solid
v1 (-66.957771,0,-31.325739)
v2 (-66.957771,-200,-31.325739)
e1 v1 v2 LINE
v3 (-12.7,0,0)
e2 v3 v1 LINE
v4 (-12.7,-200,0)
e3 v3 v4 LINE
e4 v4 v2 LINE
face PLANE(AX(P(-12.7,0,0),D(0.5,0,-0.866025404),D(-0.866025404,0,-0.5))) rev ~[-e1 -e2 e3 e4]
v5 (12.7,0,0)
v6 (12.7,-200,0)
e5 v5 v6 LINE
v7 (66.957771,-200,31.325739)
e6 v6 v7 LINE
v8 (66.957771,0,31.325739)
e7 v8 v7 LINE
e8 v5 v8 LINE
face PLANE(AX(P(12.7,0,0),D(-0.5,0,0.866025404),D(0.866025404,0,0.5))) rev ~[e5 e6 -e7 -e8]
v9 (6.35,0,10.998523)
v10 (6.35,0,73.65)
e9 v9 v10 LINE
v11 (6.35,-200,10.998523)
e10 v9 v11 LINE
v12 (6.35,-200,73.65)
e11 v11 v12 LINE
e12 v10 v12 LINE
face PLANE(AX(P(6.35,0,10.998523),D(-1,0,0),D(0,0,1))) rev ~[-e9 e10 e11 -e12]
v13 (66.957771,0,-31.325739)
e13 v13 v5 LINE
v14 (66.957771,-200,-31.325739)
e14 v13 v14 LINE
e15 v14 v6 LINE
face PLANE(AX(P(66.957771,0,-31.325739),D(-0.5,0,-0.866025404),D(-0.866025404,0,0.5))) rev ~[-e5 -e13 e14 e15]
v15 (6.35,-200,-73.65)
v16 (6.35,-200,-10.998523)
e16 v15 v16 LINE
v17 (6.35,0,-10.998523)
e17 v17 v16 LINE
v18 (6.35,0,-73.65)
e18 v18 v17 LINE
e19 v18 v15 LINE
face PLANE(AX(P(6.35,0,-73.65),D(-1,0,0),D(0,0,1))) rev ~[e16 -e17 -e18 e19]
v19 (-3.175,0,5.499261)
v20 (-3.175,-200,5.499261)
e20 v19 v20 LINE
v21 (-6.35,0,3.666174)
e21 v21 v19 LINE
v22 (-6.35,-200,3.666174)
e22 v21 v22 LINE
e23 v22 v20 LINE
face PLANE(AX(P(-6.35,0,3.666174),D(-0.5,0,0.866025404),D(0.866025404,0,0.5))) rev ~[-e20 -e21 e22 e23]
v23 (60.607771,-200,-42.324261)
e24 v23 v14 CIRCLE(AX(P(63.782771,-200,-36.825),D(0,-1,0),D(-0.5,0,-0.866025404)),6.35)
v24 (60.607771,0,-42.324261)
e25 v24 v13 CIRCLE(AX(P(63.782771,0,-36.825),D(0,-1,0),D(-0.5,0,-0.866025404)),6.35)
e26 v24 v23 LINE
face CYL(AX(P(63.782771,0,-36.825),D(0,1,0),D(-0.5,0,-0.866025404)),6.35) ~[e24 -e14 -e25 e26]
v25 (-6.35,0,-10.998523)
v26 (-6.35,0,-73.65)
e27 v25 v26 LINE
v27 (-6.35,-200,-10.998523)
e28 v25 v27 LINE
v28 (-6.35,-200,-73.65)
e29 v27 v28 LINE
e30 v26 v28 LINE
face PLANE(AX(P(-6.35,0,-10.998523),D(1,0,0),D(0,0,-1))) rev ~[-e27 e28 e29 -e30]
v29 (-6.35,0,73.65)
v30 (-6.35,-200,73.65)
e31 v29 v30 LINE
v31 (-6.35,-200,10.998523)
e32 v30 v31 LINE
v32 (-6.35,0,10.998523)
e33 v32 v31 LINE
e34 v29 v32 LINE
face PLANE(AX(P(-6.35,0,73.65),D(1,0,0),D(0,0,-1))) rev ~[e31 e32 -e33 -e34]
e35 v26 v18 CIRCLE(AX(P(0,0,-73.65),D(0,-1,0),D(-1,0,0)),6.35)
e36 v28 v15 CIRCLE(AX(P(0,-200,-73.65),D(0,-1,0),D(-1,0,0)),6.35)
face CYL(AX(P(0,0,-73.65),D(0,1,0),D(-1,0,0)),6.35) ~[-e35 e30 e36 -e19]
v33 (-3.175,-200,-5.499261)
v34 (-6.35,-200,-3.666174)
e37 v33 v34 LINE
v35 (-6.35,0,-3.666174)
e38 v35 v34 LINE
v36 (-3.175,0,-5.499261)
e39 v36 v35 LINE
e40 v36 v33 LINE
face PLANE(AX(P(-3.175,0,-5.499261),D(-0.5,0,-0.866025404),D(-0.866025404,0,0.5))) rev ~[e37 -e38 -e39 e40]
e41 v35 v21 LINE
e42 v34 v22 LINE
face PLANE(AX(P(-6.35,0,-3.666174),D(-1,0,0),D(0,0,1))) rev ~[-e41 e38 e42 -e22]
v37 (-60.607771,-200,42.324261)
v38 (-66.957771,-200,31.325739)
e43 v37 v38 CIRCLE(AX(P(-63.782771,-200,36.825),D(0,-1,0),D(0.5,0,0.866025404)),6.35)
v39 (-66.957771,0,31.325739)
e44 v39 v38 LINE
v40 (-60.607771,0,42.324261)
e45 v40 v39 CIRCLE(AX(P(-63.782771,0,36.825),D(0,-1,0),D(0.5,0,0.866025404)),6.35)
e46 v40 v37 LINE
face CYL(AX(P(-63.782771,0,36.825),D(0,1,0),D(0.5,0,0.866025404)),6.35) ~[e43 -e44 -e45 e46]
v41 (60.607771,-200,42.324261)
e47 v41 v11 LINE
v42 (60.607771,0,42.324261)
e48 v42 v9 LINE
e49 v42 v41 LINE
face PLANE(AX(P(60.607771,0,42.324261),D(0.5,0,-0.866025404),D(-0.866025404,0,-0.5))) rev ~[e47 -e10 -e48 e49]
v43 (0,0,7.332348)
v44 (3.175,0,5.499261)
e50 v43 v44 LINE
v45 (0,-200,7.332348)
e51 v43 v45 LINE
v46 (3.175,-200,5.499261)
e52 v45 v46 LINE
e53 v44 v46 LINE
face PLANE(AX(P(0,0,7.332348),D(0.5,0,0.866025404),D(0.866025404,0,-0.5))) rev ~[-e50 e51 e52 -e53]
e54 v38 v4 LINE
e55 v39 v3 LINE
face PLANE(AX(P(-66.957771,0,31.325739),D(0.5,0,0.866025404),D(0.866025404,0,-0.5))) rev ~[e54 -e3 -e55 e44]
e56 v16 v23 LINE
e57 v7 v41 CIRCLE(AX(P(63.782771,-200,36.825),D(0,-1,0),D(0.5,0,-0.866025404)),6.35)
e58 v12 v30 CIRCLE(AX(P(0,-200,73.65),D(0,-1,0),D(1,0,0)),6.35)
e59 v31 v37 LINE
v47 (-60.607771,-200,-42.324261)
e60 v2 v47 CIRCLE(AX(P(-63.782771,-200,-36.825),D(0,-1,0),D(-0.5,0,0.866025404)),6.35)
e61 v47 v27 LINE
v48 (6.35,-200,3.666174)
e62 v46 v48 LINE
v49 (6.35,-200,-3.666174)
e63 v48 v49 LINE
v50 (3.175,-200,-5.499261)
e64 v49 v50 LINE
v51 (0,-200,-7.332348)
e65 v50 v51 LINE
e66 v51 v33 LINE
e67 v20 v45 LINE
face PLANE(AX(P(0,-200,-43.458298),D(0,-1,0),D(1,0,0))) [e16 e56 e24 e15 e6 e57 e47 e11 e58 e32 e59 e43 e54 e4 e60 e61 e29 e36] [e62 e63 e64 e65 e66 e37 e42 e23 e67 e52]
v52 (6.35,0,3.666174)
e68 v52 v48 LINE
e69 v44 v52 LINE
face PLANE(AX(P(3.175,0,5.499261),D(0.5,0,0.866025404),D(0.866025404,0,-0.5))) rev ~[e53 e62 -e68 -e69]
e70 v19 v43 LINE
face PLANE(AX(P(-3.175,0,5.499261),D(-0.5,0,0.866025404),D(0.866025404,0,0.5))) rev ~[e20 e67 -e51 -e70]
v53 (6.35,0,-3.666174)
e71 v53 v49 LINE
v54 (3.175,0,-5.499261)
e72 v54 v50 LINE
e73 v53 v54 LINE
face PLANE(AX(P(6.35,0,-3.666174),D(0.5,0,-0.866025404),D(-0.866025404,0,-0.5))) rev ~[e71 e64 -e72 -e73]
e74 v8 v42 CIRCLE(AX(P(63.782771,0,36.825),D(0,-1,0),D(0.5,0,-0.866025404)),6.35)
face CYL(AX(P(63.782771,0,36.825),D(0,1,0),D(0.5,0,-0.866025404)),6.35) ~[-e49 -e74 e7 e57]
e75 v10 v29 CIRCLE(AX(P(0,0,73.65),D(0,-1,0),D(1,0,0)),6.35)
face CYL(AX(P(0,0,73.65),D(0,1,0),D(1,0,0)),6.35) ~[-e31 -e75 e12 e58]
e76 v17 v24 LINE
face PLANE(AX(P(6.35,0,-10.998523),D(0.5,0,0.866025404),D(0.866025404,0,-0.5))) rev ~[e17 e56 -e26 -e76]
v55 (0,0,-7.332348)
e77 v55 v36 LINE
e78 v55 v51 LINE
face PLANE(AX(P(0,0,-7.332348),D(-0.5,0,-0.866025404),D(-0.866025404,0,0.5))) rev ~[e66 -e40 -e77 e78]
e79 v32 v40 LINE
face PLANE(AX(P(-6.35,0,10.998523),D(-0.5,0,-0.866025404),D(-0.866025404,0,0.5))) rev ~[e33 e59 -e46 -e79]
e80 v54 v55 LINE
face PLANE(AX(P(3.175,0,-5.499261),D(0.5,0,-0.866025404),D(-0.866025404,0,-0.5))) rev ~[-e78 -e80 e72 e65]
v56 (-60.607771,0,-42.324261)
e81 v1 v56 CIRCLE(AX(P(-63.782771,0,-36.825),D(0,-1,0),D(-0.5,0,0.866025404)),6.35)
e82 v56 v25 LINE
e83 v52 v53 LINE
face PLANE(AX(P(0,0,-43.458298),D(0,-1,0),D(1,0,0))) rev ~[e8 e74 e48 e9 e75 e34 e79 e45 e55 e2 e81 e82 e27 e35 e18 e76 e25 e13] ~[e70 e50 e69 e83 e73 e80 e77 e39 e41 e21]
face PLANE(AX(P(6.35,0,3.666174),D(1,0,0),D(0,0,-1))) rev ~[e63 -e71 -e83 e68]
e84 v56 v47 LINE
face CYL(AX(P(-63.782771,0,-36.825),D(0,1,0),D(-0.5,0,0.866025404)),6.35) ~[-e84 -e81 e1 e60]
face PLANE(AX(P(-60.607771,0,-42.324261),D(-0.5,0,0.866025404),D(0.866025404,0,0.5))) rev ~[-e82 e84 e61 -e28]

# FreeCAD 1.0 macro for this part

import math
import FreeCAD as App
import Part
import Sketcher

V = App.Vector
Q = App.Units.Quantity


def add_polygon(sketch, points):
    """Adds a closed chain of lines whose ends are joined by coincident constraints."""
    first, n = sketch.GeometryCount, len(points)
    for a, b in zip(points, points[1:] + points[:1]):
        sketch.addGeometry(Part.LineSegment(App.Vector(*a, 0), App.Vector(*b, 0)), False)
    for i in range(n):
        sketch.addConstraint(Sketcher.Constraint("Coincident", first + i, 2, first + (i + 1) % n, 1))

doc = App.newDocument("Part")
body = doc.addObject("PartDesign::Body", "Body")

# Sketch on XZ plane
sketch1 = body.newObject("Sketcher::SketchObject", "Sketch")
sketch1.AttachmentSupport = (doc.getObject("XZ_Plane"), [""])
sketch1.MapMode = "FlatFace"
sketch1.addGeometry(Part.LineSegment(V(67, -31.3, 0), V(12.7, 0, 0)), False)  # 0
sketch1.addGeometry(Part.LineSegment(V(12.7, 0, 0), V(67, 31.3, 0)), False)  # 1
sketch1.addGeometry(Part.ArcOfCircle(Part.Circle(V(63.8, 36.8, 0), V(0, 0, 1), 6.3), math.radians(-60), math.radians(120)), False)  # 2
sketch1.addGeometry(Part.LineSegment(V(60.6, 42.3, 0), V(6.3, 11, 0)), False)  # 3
sketch1.addGeometry(Part.LineSegment(V(6.3, 11, 0), V(6.3, 73.7, 0)), False)  # 4
sketch1.addGeometry(Part.ArcOfCircle(Part.Circle(V(0, 73.7, 0), V(0, 0, 1), 6.3), math.radians(0), math.radians(180)), False)  # 5
sketch1.addGeometry(Part.LineSegment(V(-6.3, 73.7, 0), V(-6.3, 11, 0)), False)  # 6
sketch1.addGeometry(Part.LineSegment(V(-6.3, 11, 0), V(-60.6, 42.3, 0)), False)  # 7
sketch1.addGeometry(Part.ArcOfCircle(Part.Circle(V(-63.8, 36.8, 0), V(0, 0, 1), 6.3), math.radians(60), math.radians(240)), False)  # 8
sketch1.addGeometry(Part.LineSegment(V(-67, 31.3, 0), V(-12.7, 0, 0)), False)  # 9
sketch1.addGeometry(Part.LineSegment(V(-12.7, 0, 0), V(-67, -31.3, 0)), False)  # 10
sketch1.addGeometry(Part.ArcOfCircle(Part.Circle(V(-63.8, -36.8, 0), V(0, 0, 1), 6.3), math.radians(120), math.radians(300)), False)  # 11
sketch1.addGeometry(Part.LineSegment(V(-60.6, -42.3, 0), V(-6.3, -11, 0)), False)  # 12
sketch1.addGeometry(Part.LineSegment(V(-6.3, -11, 0), V(-6.3, -73.7, 0)), False)  # 13
sketch1.addGeometry(Part.ArcOfCircle(Part.Circle(V(0, -73.7, 0), V(0, 0, 1), 6.3), math.radians(180), math.radians(360)), False)  # 14
sketch1.addGeometry(Part.LineSegment(V(6.3, -73.7, 0), V(6.3, -11, 0)), False)  # 15
sketch1.addGeometry(Part.LineSegment(V(6.3, -11, 0), V(60.6, -42.3, 0)), False)  # 16
sketch1.addGeometry(Part.ArcOfCircle(Part.Circle(V(63.8, -36.8, 0), V(0, 0, 1), 6.3), math.radians(-120), math.radians(60)), False)  # 17
add_polygon(sketch1, [(3.2, 5.5), (6.3, 3.7), (6.3, -3.7), (3.2, -5.5), (0, -7.3), (-3.2, -5.5), (-6.3, -3.7), (-6.3, 3.7), (-3.2, 5.5), (0, 7.3)])  # lines 18-27
sketch1.addConstraint([
    Sketcher.Constraint("Coincident", 0, 2, 1, 1),
    Sketcher.Constraint("Tangent", 1, 2, 2, 1),
    Sketcher.Constraint("Tangent", 2, 2, 3, 1),
    Sketcher.Constraint("Coincident", 3, 2, 4, 1),
    Sketcher.Constraint("Tangent", 4, 2, 5, 1),
    Sketcher.Constraint("Tangent", 5, 2, 6, 1),
    Sketcher.Constraint("Coincident", 6, 2, 7, 1),
    Sketcher.Constraint("Tangent", 7, 2, 8, 1),
    Sketcher.Constraint("Tangent", 8, 2, 9, 1),
    Sketcher.Constraint("Coincident", 9, 2, 10, 1),
    Sketcher.Constraint("Tangent", 10, 2, 11, 1),
    Sketcher.Constraint("Tangent", 11, 2, 12, 1),
    Sketcher.Constraint("Coincident", 12, 2, 13, 1),
    Sketcher.Constraint("Tangent", 13, 2, 14, 1),
    Sketcher.Constraint("Tangent", 14, 2, 15, 1),
    Sketcher.Constraint("Coincident", 15, 2, 16, 1),
    Sketcher.Constraint("Tangent", 16, 2, 17, 1),
    Sketcher.Constraint("Tangent", 17, 2, 0, 1),
    Sketcher.Constraint("Vertical", 4),
    Sketcher.Constraint("Vertical", 6),
    Sketcher.Constraint("Vertical", 13),
    Sketcher.Constraint("Vertical", 15),
    Sketcher.Constraint("Vertical", 19),
    Sketcher.Constraint("Vertical", 24),
    Sketcher.Constraint("Equal", 2, 5),
    Sketcher.Constraint("Equal", 5, 8),
    Sketcher.Constraint("Equal", 8, 11),
    Sketcher.Constraint("Equal", 11, 14),
    Sketcher.Constraint("Equal", 14, 17),
    Sketcher.Constraint("Symmetric", 2, 3, 11, 3, -1, 1),
    Sketcher.Constraint("Symmetric", 5, 3, 14, 3, -1, 1),
    Sketcher.Constraint("Symmetric", 8, 3, 17, 3, -1, 1),
    Sketcher.Constraint("Symmetric", 0, 2, 9, 2, -1, 1),
    Sketcher.Constraint("Symmetric", 18, 2, 23, 2, -1, 1),
    Sketcher.Constraint("Symmetric", 20, 2, 25, 2, -1, 1),
    Sketcher.Constraint("Symmetric", 21, 2, 26, 2, -1, 1),
    Sketcher.Constraint("Symmetric", 22, 2, 27, 2, -1, 1),
    Sketcher.Constraint("Symmetric", 2, 3, 8, 3, -2),
    Sketcher.Constraint("Symmetric", 3, 2, 6, 2, -2),
    Sketcher.Constraint("Symmetric", 20, 2, 22, 2, -2),
    Sketcher.Constraint("PointOnObject", 0, 2, -1),
    Sketcher.Constraint("PointOnObject", 21, 2, -2),
    Sketcher.Constraint("Parallel", 1, 3),
    Sketcher.Constraint("Parallel", 10, 12),
    Sketcher.Constraint("Parallel", 9, 16),
    Sketcher.Constraint("Parallel", 16, 18),
    Sketcher.Constraint("Parallel", 12, 20),
    Sketcher.Constraint("Parallel", 20, 21),
    Sketcher.Constraint("Parallel", 21, 25),
    Sketcher.Constraint("Vertical", 15, 2, 18, 2),
    Sketcher.Constraint("Equal", 1, 3),
    Sketcher.Constraint("Equal", 20, 21),
    Sketcher.Constraint("Angle", 0, Q("150 deg")),
    Sketcher.Constraint("Radius", 2, Q("6.35 mm")),
    Sketcher.Constraint("DistanceY", 14, 3, 5, 3, Q("147.3 mm")),
    Sketcher.Constraint("DistanceY", 11, 3, 8, 3, Q("73.65 mm")),
    Sketcher.Constraint("DistanceY", 19, 2, 19, 1, Q("7.332348 mm")),
])
pad1 = body.newObject("PartDesign::Pad", "Pad")
pad1.Profile = sketch1
pad1.Length = 200

doc.recompute()
